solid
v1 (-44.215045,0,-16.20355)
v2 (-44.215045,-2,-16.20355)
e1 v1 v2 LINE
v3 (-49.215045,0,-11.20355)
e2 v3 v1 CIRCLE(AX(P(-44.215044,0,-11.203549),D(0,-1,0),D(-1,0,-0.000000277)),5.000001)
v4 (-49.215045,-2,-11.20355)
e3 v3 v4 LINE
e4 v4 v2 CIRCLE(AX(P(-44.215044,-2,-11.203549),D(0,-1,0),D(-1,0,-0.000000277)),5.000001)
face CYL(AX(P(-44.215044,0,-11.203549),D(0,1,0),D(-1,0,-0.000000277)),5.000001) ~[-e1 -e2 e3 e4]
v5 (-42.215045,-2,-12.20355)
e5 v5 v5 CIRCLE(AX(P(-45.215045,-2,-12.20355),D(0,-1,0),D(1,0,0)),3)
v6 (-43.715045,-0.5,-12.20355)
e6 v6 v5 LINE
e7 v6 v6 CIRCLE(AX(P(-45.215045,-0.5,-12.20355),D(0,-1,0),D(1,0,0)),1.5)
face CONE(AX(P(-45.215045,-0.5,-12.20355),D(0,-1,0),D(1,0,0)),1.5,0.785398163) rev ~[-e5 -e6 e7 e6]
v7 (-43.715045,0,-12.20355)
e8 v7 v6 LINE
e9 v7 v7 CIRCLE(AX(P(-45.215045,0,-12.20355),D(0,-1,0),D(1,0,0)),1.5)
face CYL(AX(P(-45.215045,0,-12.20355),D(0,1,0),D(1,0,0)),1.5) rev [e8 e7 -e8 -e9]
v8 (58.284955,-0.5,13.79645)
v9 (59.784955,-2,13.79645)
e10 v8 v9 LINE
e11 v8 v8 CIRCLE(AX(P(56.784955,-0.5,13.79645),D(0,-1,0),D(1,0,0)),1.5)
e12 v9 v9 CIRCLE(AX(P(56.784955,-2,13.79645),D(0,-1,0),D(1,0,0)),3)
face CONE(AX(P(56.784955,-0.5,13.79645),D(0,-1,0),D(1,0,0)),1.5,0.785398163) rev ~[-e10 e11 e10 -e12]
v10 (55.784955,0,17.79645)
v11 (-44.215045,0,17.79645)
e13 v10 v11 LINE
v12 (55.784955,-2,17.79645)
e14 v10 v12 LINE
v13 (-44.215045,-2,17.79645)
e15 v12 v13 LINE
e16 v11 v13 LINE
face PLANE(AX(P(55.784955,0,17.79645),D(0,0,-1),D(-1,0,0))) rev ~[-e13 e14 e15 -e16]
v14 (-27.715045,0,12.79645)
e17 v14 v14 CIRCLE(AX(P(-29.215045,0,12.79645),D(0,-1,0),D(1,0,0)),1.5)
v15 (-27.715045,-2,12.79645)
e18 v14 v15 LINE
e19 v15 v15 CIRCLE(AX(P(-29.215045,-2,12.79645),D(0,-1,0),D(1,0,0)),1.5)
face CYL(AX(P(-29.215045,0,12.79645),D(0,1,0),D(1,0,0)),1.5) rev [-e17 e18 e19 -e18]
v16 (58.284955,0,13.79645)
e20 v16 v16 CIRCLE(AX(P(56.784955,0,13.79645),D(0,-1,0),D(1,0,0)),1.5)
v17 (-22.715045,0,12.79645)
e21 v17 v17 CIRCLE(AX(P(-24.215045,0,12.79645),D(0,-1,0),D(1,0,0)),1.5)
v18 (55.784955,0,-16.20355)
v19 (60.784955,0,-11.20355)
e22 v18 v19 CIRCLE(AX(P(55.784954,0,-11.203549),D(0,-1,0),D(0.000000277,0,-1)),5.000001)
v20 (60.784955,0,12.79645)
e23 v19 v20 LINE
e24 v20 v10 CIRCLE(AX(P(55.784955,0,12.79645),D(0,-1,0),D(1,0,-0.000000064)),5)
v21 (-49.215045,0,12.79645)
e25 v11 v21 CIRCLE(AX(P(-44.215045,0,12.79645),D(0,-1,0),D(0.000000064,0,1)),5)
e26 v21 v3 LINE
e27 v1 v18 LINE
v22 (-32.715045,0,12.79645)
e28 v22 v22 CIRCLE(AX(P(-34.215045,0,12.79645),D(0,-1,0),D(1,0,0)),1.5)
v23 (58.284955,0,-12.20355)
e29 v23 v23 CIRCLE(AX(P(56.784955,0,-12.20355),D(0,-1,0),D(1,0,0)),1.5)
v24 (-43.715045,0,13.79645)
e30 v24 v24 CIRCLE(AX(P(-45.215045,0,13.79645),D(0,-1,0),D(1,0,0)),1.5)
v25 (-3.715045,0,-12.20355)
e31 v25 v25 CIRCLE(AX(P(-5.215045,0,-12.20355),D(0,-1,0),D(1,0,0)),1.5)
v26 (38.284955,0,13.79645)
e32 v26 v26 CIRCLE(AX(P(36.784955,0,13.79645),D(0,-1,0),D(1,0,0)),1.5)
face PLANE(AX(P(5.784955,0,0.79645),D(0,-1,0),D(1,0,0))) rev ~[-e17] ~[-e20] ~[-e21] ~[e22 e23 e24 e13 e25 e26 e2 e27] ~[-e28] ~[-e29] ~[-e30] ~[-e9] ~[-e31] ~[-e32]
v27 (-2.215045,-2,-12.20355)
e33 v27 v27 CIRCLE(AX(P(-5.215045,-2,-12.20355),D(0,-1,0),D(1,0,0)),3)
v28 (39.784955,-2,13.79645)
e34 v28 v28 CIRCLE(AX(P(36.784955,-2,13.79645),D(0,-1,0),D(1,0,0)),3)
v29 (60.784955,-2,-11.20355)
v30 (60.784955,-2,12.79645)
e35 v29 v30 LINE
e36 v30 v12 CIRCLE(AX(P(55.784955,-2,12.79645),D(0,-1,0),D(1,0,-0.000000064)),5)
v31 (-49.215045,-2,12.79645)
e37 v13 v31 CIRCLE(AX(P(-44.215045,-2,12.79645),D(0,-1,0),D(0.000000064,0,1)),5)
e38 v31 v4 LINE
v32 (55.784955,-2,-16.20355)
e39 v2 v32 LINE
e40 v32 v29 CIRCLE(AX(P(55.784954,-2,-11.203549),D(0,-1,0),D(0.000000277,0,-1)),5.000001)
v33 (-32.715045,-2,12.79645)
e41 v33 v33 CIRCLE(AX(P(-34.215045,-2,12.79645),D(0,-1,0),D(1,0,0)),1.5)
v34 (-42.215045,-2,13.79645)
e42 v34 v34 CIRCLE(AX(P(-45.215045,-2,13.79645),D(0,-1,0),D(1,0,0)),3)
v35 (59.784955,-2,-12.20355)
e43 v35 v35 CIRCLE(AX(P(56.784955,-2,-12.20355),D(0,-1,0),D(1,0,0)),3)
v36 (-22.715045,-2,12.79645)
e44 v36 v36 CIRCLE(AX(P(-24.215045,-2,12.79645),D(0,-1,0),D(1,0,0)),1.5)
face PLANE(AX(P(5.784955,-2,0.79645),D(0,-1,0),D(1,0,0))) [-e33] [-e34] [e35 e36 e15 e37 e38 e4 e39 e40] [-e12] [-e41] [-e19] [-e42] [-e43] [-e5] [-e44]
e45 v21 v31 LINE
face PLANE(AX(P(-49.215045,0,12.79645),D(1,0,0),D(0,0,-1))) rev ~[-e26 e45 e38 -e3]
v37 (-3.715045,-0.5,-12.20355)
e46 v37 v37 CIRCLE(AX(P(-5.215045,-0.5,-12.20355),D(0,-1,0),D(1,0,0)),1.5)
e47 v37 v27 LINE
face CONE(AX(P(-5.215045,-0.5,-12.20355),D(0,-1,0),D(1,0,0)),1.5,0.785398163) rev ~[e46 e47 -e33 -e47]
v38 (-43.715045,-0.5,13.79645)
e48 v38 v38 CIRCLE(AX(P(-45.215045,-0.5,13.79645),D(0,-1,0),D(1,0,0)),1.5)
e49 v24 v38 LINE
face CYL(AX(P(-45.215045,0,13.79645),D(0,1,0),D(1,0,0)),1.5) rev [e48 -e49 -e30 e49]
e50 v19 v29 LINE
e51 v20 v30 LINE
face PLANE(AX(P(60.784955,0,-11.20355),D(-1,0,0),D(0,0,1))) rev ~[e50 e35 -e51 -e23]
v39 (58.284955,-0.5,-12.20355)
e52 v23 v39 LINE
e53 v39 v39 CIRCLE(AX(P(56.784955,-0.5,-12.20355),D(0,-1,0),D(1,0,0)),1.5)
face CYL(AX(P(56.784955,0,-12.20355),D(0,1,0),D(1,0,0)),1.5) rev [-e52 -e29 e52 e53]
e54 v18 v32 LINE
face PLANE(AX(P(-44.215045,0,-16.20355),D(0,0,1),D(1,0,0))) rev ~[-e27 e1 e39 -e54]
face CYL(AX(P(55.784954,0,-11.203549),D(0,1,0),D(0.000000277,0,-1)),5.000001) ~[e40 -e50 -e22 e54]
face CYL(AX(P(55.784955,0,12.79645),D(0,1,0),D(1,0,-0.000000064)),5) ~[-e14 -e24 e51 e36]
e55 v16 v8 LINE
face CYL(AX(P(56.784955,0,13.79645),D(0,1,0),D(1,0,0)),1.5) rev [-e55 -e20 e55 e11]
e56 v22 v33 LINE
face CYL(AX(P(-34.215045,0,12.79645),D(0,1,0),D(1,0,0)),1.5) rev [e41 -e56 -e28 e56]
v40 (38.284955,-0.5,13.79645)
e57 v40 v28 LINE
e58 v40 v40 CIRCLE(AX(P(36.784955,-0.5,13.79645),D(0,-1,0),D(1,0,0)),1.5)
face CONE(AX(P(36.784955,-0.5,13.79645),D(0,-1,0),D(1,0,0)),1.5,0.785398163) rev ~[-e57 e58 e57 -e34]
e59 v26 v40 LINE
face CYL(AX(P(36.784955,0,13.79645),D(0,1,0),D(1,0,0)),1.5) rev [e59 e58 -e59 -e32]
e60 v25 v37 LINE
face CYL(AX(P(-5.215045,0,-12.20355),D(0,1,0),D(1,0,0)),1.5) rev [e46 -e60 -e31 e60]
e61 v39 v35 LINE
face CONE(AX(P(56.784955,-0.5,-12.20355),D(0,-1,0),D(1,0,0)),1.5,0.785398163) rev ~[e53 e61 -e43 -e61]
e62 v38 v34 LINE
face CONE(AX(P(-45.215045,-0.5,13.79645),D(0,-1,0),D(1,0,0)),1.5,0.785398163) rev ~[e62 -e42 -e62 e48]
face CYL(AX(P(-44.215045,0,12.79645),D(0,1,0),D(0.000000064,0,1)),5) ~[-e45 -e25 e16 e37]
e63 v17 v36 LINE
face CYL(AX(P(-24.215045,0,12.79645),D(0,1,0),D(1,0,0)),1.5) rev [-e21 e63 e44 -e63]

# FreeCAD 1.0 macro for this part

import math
import FreeCAD as App
import Part
import Sketcher

V = App.Vector


def edges_at(feature, points):
    """Names of the edges that pass closest to the given points."""
    edges = feature.Shape.Edges
    near = lambda p: min(range(len(edges)), key=lambda i: edges[i].distToShape(Part.Vertex(*p))[0])
    return sorted({f"Edge{near(p) + 1}" for p in points})

doc = App.newDocument("Part")
body = doc.addObject("PartDesign::Body", "Body")

# Sketch on XZ plane
sketch1 = body.newObject("Sketcher::SketchObject", "Sketch")
sketch1.AttachmentSupport = (doc.getObject("XZ_Plane"), [""])
sketch1.MapMode = "FlatFace"
sketch1.addGeometry([
    Part.LineSegment(V(55.784955, 17.79645, 0), V(-44.215045, 17.79645, 0)),  # 0
    Part.ArcOfCircle(Part.Circle(V(-44.215045, 12.79645, 0), V(0, 0, 1), 5), math.radians(89.999996), math.radians(180.000004)),  # 1
    Part.LineSegment(V(-49.215045, 12.79645, 0), V(-49.215045, -11.20355, 0)),  # 2
    Part.ArcOfCircle(Part.Circle(V(-44.215044, -11.203549, 0), V(0, 0, 1), 5.000001), math.radians(-179.999984), math.radians(-90.000016)),  # 3
    Part.LineSegment(V(-44.215045, -16.20355, 0), V(55.784955, -16.20355, 0)),  # 4
    Part.ArcOfCircle(Part.Circle(V(55.784954, -11.203549, 0), V(0, 0, 1), 5.000001), math.radians(-89.999984), math.radians(-0.000016)),  # 5
    Part.LineSegment(V(60.784955, -11.20355, 0), V(60.784955, 12.79645, 0)),  # 6
    Part.ArcOfCircle(Part.Circle(V(55.784955, 12.79645, 0), V(0, 0, 1), 5), math.radians(-0.000004), math.radians(90.000004)),  # 7
    Part.Circle(V(-45.215045, -12.20355, 0), V(0, 0, 1), 1.5),  # 8
    Part.Circle(V(-5.215045, -12.20355, 0), V(0, 0, 1), 1.5),  # 9
    Part.Circle(V(56.784955, -12.20355, 0), V(0, 0, 1), 1.5),  # 10
    Part.Circle(V(-34.215045, 12.79645, 0), V(0, 0, 1), 1.5),  # 11
    Part.Circle(V(-45.215045, 13.79645, 0), V(0, 0, 1), 1.5),  # 12
    Part.Circle(V(-29.215045, 12.79645, 0), V(0, 0, 1), 1.5),  # 13
    Part.Circle(V(-24.215045, 12.79645, 0), V(0, 0, 1), 1.5),  # 14
    Part.Circle(V(36.784955, 13.79645, 0), V(0, 0, 1), 1.5),  # 15
    Part.Circle(V(56.784955, 13.79645, 0), V(0, 0, 1), 1.5),  # 16
], False)
sketch1.addConstraint([
    Sketcher.Constraint("Tangent", 0, 2, 1, 1),
    Sketcher.Constraint("Tangent", 1, 2, 2, 1),
    Sketcher.Constraint("Tangent", 2, 2, 3, 1),
    Sketcher.Constraint("Tangent", 3, 2, 4, 1),
    Sketcher.Constraint("Tangent", 4, 2, 5, 1),
    Sketcher.Constraint("Tangent", 5, 2, 6, 1),
    Sketcher.Constraint("Tangent", 6, 2, 7, 1),
    Sketcher.Constraint("Tangent", 7, 2, 0, 1),
    Sketcher.Constraint("Horizontal", 0),
    Sketcher.Constraint("Vertical", 2),
    Sketcher.Constraint("Horizontal", 4),
    Sketcher.Constraint("Vertical", 6),
    Sketcher.Constraint("Equal", 1, 3),
    Sketcher.Constraint("Equal", 3, 5),
    Sketcher.Constraint("Equal", 5, 7),
    Sketcher.Constraint("Equal", 8, 9),
    Sketcher.Constraint("Equal", 9, 10),
    Sketcher.Constraint("Equal", 10, 11),
    Sketcher.Constraint("Equal", 11, 12),
    Sketcher.Constraint("Equal", 12, 13),
    Sketcher.Constraint("Equal", 13, 14),
    Sketcher.Constraint("Equal", 14, 15),
    Sketcher.Constraint("Equal", 15, 16),
    Sketcher.Constraint("Horizontal", 8, 3, 9, 3),
    Sketcher.Constraint("Horizontal", 9, 3, 10, 3),
    Sketcher.Constraint("Horizontal", 7, 3, 11, 3),
    Sketcher.Constraint("Horizontal", 11, 3, 13, 3),
    Sketcher.Constraint("Horizontal", 13, 3, 14, 3),
    Sketcher.Constraint("Horizontal", 12, 3, 15, 3),
    Sketcher.Constraint("Horizontal", 15, 3, 16, 3),
    Sketcher.Constraint("Vertical", 8, 3, 12, 3),
    Sketcher.Constraint("Vertical", 10, 3, 16, 3),
    Sketcher.Constraint("Diameter", 8, 3.0),
    Sketcher.Constraint("Radius", 1, 5.0),
    Sketcher.Constraint("DistanceX", 0, 2, 0, 1, 100.0),
    Sketcher.Constraint("DistanceY", 2, 2, 2, 1, 24.0),
    Sketcher.Constraint("DistanceX", 8, 3, 3, 3, 1.000001),
    Sketcher.Constraint("DistanceY", 8, 3, 3, 3, 1.000001),
    Sketcher.Constraint("DistanceX", 3, 3, 9, 3, 38.999999),
    Sketcher.Constraint("DistanceX", 5, 3, 10, 3, 1.000001),
    Sketcher.Constraint("DistanceX", 1, 3, 11, 3, 10.0),
    Sketcher.Constraint("DistanceY", 1, 3, 12, 3, 1.0),
    Sketcher.Constraint("DistanceX", 11, 3, 13, 3, 5.0),
    Sketcher.Constraint("DistanceX", 13, 3, 14, 3, 5.0),
    Sketcher.Constraint("DistanceX", 15, 3, 7, 3, 19.0),
    Sketcher.Constraint("DistanceY", -1, 1, 1, 3, 12.79645),
    Sketcher.Constraint("DistanceX", 1, 3, -1, 1, 44.215045),
])
pad1 = body.newObject("PartDesign::Pad", "Pad")
pad1.Profile = sketch1
pad1.Length = 2
doc.recompute()

chamfer = body.newObject("PartDesign::Chamfer", "Chamfer")
chamfer.Base = (pad1, edges_at(pad1, [
    (-46.715, -2, 13.796),
    (-46.715, -2, -12.204),
    (-6.715, -2, -12.204),
    (35.285, -2, 13.796),
    (55.285, -2, 13.796),
    (55.285, -2, -12.204),
]))
chamfer.Size = 1.5

doc.recompute()
